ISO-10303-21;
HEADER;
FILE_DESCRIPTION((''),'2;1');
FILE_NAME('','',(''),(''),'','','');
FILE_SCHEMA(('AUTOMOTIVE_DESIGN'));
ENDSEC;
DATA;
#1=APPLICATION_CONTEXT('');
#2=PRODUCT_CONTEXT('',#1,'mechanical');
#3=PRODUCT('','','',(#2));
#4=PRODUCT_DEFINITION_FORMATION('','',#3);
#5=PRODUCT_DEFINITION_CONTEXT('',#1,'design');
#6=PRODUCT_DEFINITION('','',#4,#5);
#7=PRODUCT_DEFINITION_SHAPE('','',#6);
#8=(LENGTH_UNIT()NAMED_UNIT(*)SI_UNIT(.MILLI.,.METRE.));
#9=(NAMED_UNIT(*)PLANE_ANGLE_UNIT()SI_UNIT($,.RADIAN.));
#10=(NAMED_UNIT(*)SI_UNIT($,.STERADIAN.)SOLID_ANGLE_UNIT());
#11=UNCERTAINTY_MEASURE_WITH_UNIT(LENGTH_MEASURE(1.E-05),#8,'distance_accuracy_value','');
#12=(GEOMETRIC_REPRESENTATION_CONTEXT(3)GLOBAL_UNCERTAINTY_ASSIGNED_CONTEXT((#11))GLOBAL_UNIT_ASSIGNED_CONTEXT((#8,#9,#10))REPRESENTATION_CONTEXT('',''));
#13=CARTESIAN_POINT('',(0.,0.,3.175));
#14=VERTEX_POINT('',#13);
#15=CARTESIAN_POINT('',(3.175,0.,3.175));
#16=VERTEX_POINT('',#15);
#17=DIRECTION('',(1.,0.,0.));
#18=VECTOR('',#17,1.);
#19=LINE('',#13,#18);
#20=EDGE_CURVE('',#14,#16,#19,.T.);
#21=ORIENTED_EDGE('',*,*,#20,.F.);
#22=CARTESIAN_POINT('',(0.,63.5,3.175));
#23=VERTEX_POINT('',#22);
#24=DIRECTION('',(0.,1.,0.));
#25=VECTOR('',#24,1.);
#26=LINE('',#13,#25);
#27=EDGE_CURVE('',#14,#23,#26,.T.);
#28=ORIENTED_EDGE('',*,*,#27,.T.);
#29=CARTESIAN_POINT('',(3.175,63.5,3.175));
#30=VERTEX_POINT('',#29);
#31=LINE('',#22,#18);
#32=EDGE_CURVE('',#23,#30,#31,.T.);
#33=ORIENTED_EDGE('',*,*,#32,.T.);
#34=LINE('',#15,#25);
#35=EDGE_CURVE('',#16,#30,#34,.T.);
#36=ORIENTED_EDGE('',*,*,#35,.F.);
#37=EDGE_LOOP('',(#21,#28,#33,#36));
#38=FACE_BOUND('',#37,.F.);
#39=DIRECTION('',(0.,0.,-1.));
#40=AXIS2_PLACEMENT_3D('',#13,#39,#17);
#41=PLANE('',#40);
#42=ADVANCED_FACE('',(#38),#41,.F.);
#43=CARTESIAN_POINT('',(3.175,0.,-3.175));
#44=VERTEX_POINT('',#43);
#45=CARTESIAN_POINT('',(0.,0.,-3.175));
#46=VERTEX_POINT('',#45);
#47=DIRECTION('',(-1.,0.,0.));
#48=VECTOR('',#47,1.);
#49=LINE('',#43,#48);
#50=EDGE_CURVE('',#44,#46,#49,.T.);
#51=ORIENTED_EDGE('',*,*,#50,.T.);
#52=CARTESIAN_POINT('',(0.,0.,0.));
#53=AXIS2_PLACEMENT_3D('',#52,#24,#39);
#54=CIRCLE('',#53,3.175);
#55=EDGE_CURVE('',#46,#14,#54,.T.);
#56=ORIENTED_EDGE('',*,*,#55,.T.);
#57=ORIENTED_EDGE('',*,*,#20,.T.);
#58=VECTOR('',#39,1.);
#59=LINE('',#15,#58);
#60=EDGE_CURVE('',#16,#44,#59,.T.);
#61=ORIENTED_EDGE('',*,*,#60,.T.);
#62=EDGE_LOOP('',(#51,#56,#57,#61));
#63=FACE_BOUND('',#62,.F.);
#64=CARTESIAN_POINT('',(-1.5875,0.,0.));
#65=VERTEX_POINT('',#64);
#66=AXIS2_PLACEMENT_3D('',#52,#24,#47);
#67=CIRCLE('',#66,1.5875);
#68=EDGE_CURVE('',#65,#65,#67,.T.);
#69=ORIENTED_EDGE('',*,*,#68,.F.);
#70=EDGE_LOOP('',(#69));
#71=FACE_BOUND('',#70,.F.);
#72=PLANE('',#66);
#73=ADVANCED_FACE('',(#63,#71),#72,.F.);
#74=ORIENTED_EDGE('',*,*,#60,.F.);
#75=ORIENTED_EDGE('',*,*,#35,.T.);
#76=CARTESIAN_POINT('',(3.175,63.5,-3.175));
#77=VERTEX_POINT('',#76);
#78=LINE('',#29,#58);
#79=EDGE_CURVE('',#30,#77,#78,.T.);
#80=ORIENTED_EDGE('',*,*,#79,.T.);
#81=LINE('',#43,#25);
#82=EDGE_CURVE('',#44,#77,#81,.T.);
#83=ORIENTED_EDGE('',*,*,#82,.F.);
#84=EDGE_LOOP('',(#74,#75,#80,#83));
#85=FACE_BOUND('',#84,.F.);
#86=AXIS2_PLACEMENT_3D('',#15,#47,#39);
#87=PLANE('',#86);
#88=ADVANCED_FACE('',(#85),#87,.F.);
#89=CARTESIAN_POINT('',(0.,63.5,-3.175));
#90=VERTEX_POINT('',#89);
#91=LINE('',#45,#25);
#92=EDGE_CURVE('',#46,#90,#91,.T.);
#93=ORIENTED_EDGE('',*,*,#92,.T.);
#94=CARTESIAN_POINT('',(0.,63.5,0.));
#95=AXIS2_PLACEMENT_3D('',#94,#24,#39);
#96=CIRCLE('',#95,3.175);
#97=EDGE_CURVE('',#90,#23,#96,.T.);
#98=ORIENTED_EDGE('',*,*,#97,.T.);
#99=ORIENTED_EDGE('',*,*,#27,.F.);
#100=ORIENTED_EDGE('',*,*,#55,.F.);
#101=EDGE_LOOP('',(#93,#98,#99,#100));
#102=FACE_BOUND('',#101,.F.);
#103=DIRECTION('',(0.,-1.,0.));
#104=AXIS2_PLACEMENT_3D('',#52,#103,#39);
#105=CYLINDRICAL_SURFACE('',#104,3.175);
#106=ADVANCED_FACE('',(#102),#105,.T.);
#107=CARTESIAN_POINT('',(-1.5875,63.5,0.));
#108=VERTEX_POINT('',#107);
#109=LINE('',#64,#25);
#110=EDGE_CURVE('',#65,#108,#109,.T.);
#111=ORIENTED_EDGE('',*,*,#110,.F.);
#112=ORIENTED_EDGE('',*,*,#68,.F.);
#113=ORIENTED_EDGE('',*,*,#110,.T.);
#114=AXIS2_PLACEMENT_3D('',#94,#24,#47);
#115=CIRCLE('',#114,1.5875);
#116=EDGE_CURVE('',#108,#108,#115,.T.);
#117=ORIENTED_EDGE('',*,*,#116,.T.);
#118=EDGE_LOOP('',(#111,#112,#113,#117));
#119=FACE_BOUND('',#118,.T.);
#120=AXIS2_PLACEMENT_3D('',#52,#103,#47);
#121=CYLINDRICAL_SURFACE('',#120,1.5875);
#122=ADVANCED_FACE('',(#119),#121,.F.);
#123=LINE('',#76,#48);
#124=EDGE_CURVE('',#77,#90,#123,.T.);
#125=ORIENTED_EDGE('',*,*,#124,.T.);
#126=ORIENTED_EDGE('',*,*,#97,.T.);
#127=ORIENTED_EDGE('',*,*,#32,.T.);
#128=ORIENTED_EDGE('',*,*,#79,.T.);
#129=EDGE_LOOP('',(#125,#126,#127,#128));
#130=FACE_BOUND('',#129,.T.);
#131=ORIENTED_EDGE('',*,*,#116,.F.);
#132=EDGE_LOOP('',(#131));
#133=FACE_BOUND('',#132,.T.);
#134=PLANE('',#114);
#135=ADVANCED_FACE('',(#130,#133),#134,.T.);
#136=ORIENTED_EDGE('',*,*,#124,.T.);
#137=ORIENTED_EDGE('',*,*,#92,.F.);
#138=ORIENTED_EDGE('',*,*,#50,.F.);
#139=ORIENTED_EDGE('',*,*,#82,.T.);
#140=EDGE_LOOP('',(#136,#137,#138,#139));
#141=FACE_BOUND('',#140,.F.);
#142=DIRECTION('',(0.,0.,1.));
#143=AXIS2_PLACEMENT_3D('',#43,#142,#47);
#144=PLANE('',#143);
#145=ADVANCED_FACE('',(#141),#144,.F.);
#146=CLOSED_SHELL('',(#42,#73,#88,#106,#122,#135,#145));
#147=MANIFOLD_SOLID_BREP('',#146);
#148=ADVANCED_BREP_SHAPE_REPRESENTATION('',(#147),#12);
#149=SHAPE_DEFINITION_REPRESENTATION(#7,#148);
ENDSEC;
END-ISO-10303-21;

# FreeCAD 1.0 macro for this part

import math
import FreeCAD as App
import Part
import Sketcher

V = App.Vector
Q = App.Units.Quantity

doc = App.newDocument("Part")
params = doc.addObject("Spreadsheet::Sheet", "Params")
for row, (alias, value) in enumerate([
    ("sketch1_diameter", "0.125 in"),
    ("sketch1_radius", "0.125 in"),
    ("sketch1_width", "0.125 in"),
    ("pad1_length", "2.5 in"),
], start=1):
    params.set(f"A{row}", alias)
    params.set(f"B{row}", "=" + value)
    params.setAlias(f"B{row}", alias)

body = doc.addObject("PartDesign::Body", "Body")

sketch1 = body.newObject("Sketcher::SketchObject", "Sketch")
sketch1.AttachmentSupport = (doc.getObject("XZ_Plane"), [""])
sketch1.MapMode = "FlatFace"
sketch1.addGeometry([
    Part.LineSegment(V(3.2, -3.2, 0), V(0, -3.2, 0)),
    Part.ArcOfCircle(Part.Circle(V(0, 0, 0), V(0, 0, 1), 3.2), math.radians(90), math.radians(270)),
    Part.LineSegment(V(0, 3.2, 0), V(3.2, 3.2, 0)),
    Part.LineSegment(V(3.2, 3.2, 0), V(3.2, -3.2, 0)),
    Part.Circle(V(0, 0, 0), V(0, 0, 1), 1.6),
], False)
sketch1.addConstraint([
    Sketcher.Constraint("Tangent", 0, 2, 1, 2),
    Sketcher.Constraint("Tangent", 1, 1, 2, 1),
    Sketcher.Constraint("Coincident", 2, 2, 3, 1),
    Sketcher.Constraint("Coincident", 3, 2, 0, 1),
    Sketcher.Constraint("Horizontal", 0),
    Sketcher.Constraint("Horizontal", 2),
    Sketcher.Constraint("Vertical", 3),
    Sketcher.Constraint("Coincident", 1, 3, -1, 1),
    Sketcher.Constraint("Coincident", 4, 3, -1, 1),
    Sketcher.Constraint("Diameter", 4, Q("0.125 in")),
    Sketcher.Constraint("Radius", 1, Q("0.125 in")),
    Sketcher.Constraint("DistanceX", 0, 2, 0, 1, Q("0.125 in")),
])
sketch1.setExpression("Constraints[9]", "Params.sketch1_diameter")
sketch1.setExpression("Constraints[10]", "Params.sketch1_radius")
sketch1.setExpression("Constraints[11]", "Params.sketch1_width")
pad1 = body.newObject("PartDesign::Pad", "Pad")
pad1.Profile = sketch1
pad1.setExpression("Length", "Params.pad1_length")
pad1.Reversed = True

doc.recompute()
